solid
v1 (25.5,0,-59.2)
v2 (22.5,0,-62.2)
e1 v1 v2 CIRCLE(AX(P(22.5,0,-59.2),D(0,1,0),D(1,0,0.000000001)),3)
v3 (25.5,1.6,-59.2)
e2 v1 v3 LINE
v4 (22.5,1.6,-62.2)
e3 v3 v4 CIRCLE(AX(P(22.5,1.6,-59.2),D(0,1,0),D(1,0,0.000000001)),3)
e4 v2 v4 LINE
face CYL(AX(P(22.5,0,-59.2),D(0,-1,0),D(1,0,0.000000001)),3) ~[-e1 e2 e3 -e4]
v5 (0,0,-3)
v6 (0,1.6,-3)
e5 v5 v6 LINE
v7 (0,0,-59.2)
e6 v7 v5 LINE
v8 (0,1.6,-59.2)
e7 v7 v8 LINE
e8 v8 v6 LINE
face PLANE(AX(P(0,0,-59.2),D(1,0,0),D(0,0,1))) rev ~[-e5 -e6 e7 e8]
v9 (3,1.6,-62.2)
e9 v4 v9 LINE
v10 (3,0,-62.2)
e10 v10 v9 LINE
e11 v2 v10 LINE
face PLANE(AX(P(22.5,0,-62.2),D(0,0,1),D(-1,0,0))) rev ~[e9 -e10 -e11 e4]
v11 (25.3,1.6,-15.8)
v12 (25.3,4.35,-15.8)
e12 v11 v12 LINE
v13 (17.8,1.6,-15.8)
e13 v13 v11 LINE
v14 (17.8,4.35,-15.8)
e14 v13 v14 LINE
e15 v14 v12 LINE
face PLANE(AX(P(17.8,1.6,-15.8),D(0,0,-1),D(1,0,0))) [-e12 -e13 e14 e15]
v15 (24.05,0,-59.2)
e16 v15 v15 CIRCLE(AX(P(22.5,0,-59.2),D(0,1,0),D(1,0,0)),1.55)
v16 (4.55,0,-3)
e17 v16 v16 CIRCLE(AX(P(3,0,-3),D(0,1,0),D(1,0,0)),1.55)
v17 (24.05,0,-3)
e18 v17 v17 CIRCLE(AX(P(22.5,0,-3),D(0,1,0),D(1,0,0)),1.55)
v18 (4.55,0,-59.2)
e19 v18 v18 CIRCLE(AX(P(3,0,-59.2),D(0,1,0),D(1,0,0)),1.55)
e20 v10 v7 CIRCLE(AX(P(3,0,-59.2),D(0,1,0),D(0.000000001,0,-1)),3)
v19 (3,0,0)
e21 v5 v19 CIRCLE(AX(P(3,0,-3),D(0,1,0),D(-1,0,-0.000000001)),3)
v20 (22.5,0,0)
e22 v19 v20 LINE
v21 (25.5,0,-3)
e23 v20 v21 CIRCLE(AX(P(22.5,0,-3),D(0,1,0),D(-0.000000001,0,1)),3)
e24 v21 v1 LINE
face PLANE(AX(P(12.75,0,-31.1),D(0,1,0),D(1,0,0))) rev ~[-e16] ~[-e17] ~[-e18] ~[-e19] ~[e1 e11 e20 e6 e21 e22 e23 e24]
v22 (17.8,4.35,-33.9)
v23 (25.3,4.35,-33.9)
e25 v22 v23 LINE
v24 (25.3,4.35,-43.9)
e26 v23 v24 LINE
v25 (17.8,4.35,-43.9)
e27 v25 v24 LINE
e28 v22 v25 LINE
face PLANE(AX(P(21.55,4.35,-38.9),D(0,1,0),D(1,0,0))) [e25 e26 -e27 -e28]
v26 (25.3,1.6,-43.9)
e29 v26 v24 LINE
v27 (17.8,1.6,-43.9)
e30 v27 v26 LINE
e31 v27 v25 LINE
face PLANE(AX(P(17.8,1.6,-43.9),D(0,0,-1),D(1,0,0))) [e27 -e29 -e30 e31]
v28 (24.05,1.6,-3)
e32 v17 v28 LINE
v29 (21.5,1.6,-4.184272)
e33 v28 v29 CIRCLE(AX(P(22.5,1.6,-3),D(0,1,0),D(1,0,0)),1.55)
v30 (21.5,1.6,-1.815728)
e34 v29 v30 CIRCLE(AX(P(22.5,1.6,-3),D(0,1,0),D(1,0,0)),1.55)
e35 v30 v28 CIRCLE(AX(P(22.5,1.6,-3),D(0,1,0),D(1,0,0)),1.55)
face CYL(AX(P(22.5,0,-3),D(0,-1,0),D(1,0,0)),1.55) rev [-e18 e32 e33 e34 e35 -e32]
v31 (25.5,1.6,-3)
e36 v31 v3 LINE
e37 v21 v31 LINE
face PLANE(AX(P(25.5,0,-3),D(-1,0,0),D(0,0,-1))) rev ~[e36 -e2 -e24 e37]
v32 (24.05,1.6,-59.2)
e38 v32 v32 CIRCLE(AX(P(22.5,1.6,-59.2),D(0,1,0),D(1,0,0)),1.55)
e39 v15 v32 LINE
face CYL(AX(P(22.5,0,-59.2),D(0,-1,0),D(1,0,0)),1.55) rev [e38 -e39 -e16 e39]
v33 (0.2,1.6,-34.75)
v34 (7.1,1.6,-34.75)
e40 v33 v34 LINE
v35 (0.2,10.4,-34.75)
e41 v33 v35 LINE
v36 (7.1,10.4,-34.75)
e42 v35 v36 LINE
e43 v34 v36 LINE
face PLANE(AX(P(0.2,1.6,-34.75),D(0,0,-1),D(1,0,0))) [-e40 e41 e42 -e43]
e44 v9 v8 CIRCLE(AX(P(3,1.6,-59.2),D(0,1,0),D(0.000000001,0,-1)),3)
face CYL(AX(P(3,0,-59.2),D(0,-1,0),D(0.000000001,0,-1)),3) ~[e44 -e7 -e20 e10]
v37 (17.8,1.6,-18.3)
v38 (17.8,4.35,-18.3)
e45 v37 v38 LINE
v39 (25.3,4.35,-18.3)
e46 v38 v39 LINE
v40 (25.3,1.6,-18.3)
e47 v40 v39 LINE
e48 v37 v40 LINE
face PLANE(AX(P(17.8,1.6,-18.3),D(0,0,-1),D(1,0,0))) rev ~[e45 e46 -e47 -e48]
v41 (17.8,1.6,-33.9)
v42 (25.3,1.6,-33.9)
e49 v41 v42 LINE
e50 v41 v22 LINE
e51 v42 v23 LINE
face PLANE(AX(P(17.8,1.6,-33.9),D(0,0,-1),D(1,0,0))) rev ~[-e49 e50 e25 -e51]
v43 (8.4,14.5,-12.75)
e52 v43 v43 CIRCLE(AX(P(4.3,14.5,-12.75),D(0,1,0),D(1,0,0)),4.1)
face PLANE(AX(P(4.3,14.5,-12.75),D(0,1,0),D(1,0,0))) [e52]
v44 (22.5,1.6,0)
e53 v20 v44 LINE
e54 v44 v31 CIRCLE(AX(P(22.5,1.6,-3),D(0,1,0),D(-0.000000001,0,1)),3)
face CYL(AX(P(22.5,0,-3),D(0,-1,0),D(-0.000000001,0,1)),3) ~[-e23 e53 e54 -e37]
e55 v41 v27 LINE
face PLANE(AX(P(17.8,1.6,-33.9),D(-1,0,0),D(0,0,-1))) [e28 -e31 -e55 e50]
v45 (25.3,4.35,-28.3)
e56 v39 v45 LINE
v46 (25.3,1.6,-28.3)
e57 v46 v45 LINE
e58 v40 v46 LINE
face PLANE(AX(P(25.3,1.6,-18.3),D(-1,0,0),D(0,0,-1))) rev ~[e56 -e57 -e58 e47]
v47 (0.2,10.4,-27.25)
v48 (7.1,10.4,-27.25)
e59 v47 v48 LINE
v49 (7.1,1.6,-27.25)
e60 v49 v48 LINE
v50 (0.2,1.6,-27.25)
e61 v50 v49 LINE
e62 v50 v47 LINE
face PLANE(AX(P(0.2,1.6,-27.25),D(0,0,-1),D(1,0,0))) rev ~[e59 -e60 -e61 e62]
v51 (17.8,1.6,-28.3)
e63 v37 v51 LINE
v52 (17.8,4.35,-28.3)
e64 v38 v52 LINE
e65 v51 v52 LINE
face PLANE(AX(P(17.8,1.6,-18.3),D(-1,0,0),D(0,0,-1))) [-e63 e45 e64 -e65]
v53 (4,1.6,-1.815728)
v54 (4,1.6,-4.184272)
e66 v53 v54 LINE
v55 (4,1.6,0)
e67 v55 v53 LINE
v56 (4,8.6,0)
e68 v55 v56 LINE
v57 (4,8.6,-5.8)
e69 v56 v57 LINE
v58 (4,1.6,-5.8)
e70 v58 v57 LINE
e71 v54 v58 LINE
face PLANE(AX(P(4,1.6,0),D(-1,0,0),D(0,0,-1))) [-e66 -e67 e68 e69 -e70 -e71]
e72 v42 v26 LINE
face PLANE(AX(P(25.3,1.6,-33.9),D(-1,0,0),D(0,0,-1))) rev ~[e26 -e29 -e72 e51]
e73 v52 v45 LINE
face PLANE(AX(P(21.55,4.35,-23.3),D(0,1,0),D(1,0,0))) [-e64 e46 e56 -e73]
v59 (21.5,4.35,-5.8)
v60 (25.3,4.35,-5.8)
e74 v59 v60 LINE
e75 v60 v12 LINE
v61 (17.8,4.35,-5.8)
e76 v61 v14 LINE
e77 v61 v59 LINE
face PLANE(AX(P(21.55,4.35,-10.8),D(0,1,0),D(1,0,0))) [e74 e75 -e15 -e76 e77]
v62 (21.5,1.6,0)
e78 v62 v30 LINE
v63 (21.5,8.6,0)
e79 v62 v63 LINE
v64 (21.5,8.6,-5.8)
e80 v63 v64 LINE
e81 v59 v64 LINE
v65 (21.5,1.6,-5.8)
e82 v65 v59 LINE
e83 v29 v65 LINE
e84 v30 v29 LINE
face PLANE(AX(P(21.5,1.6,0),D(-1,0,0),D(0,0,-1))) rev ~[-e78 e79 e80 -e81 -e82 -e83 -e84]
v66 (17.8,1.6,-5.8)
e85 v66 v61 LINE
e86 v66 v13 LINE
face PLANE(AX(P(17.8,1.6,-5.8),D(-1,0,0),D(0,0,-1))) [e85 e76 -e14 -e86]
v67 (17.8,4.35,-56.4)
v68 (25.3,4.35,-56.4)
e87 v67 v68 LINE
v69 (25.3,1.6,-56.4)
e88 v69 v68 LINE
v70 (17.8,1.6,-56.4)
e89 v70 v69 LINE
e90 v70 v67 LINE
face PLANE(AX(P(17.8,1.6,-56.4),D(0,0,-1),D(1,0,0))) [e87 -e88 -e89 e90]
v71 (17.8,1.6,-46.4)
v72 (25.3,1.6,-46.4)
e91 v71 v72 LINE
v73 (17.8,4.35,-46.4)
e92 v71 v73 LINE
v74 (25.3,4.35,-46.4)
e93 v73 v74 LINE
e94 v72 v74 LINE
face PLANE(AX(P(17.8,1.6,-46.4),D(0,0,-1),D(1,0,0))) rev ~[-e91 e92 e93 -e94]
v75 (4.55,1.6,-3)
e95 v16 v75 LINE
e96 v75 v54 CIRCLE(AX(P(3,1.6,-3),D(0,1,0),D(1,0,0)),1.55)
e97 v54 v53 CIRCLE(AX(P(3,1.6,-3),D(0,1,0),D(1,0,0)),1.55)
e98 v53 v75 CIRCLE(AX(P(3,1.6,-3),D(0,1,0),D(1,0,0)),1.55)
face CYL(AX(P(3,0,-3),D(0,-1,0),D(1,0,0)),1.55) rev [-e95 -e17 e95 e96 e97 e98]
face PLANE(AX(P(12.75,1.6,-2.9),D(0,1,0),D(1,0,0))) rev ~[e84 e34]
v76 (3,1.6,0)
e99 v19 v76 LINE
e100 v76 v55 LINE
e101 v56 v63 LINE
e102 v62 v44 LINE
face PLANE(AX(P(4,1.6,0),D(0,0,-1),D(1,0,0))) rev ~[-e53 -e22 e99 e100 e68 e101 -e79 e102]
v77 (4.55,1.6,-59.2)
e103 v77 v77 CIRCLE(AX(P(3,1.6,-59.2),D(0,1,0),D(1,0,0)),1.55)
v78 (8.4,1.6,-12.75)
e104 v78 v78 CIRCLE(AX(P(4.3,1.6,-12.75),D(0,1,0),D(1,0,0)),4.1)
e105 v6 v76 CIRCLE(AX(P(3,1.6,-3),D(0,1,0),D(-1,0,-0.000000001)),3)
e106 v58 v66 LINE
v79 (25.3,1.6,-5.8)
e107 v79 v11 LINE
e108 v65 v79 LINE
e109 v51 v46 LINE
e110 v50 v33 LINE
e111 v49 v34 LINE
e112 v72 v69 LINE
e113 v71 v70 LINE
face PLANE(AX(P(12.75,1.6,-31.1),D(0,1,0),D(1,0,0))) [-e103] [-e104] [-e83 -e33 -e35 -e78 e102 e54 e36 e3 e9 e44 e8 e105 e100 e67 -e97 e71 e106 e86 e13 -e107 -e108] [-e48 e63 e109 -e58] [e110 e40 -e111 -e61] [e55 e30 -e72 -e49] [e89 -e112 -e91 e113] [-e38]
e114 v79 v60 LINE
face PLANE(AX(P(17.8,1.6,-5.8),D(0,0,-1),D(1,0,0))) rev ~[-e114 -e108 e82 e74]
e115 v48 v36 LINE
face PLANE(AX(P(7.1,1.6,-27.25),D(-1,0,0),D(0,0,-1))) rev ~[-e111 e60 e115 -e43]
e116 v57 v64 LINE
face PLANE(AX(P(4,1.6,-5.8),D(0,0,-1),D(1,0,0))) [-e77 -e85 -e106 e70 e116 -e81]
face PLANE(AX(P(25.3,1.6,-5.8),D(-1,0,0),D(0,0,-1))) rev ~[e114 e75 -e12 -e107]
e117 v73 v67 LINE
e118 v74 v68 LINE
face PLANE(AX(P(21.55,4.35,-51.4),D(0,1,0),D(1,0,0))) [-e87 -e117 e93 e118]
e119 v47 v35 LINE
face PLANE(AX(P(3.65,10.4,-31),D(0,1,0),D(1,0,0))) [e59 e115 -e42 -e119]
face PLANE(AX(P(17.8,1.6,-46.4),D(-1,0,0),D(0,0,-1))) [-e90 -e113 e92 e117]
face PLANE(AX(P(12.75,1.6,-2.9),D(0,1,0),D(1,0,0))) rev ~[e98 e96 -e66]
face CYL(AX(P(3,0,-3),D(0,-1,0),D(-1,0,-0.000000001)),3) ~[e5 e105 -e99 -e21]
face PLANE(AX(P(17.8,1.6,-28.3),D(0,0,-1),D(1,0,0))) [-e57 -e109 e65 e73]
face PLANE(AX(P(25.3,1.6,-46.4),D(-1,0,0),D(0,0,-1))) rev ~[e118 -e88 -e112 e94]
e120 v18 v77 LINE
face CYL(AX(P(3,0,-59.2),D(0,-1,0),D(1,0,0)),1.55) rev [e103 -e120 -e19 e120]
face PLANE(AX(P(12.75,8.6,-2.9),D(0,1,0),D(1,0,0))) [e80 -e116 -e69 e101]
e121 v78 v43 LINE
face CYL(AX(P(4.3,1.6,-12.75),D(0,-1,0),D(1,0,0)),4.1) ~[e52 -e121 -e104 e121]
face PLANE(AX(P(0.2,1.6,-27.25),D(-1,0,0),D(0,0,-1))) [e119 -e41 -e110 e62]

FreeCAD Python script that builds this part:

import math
import FreeCAD as App
import Part
import Sketcher
Q = App.Units.Quantity


def add_polygon(sketch, points):
    """Adds a closed chain of lines whose ends are joined by coincident constraints."""
    first, n = sketch.GeometryCount, len(points)
    for a, b in zip(points, points[1:] + points[:1]):
        sketch.addGeometry(Part.LineSegment(App.Vector(*a, 0), App.Vector(*b, 0)), False)
    for i in range(n):
        sketch.addConstraint(Sketcher.Constraint("Coincident", first + i, 2, first + (i + 1) % n, 1))

doc = App.newDocument("Part")
params = doc.addObject("Spreadsheet::Sheet", "Params")
for row, (alias, value) in enumerate([
    ("sketch1_radius", "3 mm"),
    ("sketch1_diameter", "3.1 mm"),
    ("sketch1_width", "19.5 mm"),
    ("sketch1_height", "56.2 mm"),
    ("pad1_length", "1.6 mm"),
    ("sketch2_width", "6.9 mm"),
    ("sketch2_height", "7.5 mm"),
    ("pad2_length", "8.8 mm"),
    ("sketch3_diameter", "8.2 mm"),
    ("pad3_length", "12.9 mm"),
    ("sketch4_height", "10 mm"),
    ("sketch4_width", "7.5 mm"),
    ("pad4_length", "2.75 mm"),
    ("sketch5_width", "17.5 mm"),
    ("sketch5_height", "5.8 mm"),
    ("pad5_length", "7 mm"),
], start=1):
    params.set(f"A{row}", alias)
    params.set(f"B{row}", "=" + value)
    params.setAlias(f"B{row}", alias)

body = doc.addObject("PartDesign::Body", "Body")

sketch1 = doc.addObject("Sketcher::SketchObject", "Sketch")
body.addObject(sketch1)
sketch1.AttachmentSupport = (doc.XZ_Plane, [""])
sketch1.MapMode = "FlatFace"
sketch1.addGeometry(Part.LineSegment(App.Vector(3, 0, 0), App.Vector(22.5, 0, 0)), False)
sketch1.addGeometry(Part.ArcOfCircle(Part.Circle(App.Vector(22.5, -3, 0), App.Vector(0, 0, 1), 3), math.radians(0), math.radians(90)), False)
sketch1.addGeometry(Part.LineSegment(App.Vector(25.5, -3, 0), App.Vector(25.5, -59.2, 0)), False)
sketch1.addGeometry(Part.ArcOfCircle(Part.Circle(App.Vector(22.5, -59.2, 0), App.Vector(0, 0, 1), 3), math.radians(-90), math.radians(0)), False)
sketch1.addGeometry(Part.LineSegment(App.Vector(22.5, -62.2, 0), App.Vector(3, -62.2, 0)), False)
sketch1.addGeometry(Part.ArcOfCircle(Part.Circle(App.Vector(3, -59.2, 0), App.Vector(0, 0, 1), 3), math.radians(180), math.radians(270)), False)
sketch1.addGeometry(Part.LineSegment(App.Vector(0, -59.2, 0), App.Vector(0, -3, 0)), False)
sketch1.addGeometry(Part.ArcOfCircle(Part.Circle(App.Vector(3, -3, 0), App.Vector(0, 0, 1), 3), math.radians(90), math.radians(180)), False)
sketch1.addGeometry(Part.Circle(App.Vector(3, -3, 0), App.Vector(0, 0, 1), 1.6), False)
sketch1.addGeometry(Part.Circle(App.Vector(22.5, -3, 0), App.Vector(0, 0, 1), 1.6), False)
sketch1.addGeometry(Part.Circle(App.Vector(3, -59.2, 0), App.Vector(0, 0, 1), 1.6), False)
sketch1.addGeometry(Part.Circle(App.Vector(22.5, -59.2, 0), App.Vector(0, 0, 1), 1.6), False)
sketch1.addConstraint(Sketcher.Constraint("Tangent", 0, 2, 1, 2))
sketch1.addConstraint(Sketcher.Constraint("Tangent", 1, 1, 2, 1))
sketch1.addConstraint(Sketcher.Constraint("Tangent", 2, 2, 3, 2))
sketch1.addConstraint(Sketcher.Constraint("Tangent", 3, 1, 4, 1))
sketch1.addConstraint(Sketcher.Constraint("Tangent", 4, 2, 5, 2))
sketch1.addConstraint(Sketcher.Constraint("Tangent", 5, 1, 6, 1))
sketch1.addConstraint(Sketcher.Constraint("Tangent", 6, 2, 7, 2))
sketch1.addConstraint(Sketcher.Constraint("Tangent", 7, 1, 0, 1))
sketch1.addConstraint(Sketcher.Constraint("Horizontal", 0))
sketch1.addConstraint(Sketcher.Constraint("Vertical", 2))
sketch1.addConstraint(Sketcher.Constraint("Horizontal", 4))
sketch1.addConstraint(Sketcher.Constraint("Vertical", 6))
sketch1.addConstraint(Sketcher.Constraint("Coincident", 8, 3, 7, 3))
sketch1.addConstraint(Sketcher.Constraint("Coincident", 9, 3, 1, 3))
sketch1.addConstraint(Sketcher.Constraint("Coincident", 10, 3, 5, 3))
sketch1.addConstraint(Sketcher.Constraint("Coincident", 11, 3, 3, 3))
sketch1.addConstraint(Sketcher.Constraint("Equal", 1, 3))
sketch1.addConstraint(Sketcher.Constraint("Equal", 3, 5))
sketch1.addConstraint(Sketcher.Constraint("Equal", 5, 7))
sketch1.addConstraint(Sketcher.Constraint("Equal", 8, 9))
sketch1.addConstraint(Sketcher.Constraint("Equal", 9, 10))
sketch1.addConstraint(Sketcher.Constraint("Equal", 10, 11))
sketch1.addConstraint(Sketcher.Constraint("PointOnObject", 0, 2, -1))
sketch1.addConstraint(Sketcher.Constraint("PointOnObject", 5, 1, -2))
sketch1.addConstraint(Sketcher.Constraint("Radius", 1, Q("3 mm")))
sketch1.addConstraint(Sketcher.Constraint("Diameter", 8, Q("3.1 mm")))
sketch1.addConstraint(Sketcher.Constraint("DistanceX", 0, 1, 0, 2, Q("19.5 mm")))
sketch1.addConstraint(Sketcher.Constraint("DistanceY", 2, 2, 2, 1, Q("56.2 mm")))
sketch1.setExpression("Constraints[24]", "Params.sketch1_radius")
sketch1.setExpression("Constraints[25]", "Params.sketch1_diameter")
sketch1.setExpression("Constraints[26]", "Params.sketch1_width")
sketch1.setExpression("Constraints[27]", "Params.sketch1_height")
pad1 = doc.addObject("PartDesign::Pad", "Pad")
body.addObject(pad1)
pad1.Profile = sketch1
pad1.setExpression("Length", "Params.pad1_length")
pad1.Reversed = True

sketch2 = doc.addObject("Sketcher::SketchObject", "Sketch001")
body.addObject(sketch2)
sketch2.AttachmentSupport = (doc.XZ_Plane, [""])
sketch2.MapMode = "FlatFace"
sketch2.AttachmentOffset = App.Placement(App.Vector(0, 0, -1.6), App.Rotation())
add_polygon(sketch2, [(0, -35), (0, -27), (7, -27), (7, -35)])
sketch2.addConstraint(Sketcher.Constraint("Vertical", 0))
sketch2.addConstraint(Sketcher.Constraint("Horizontal", 1))
sketch2.addConstraint(Sketcher.Constraint("Vertical", 2))
sketch2.addConstraint(Sketcher.Constraint("Horizontal", 3))
sketch2.addConstraint(Sketcher.Constraint("DistanceX", 1, 1, 1, 2, Q("6.9 mm")))
sketch2.addConstraint(Sketcher.Constraint("DistanceY", 0, 1, 0, 2, Q("7.5 mm")))
sketch2.addConstraint(Sketcher.Constraint("DistanceX", -1, 1, 0, 2, Q("0.2 mm")))
sketch2.addConstraint(Sketcher.Constraint("DistanceY", 0, 2, -1, 1, Q("27.25 mm")))
sketch2.setExpression("Constraints[8]", "Params.sketch2_width")
sketch2.setExpression("Constraints[9]", "Params.sketch2_height")
pad2 = doc.addObject("PartDesign::Pad", "Pad001")
body.addObject(pad2)
pad2.Profile = sketch2
pad2.setExpression("Length", "Params.pad2_length")
pad2.Reversed = True

sketch3 = doc.addObject("Sketcher::SketchObject", "Sketch002")
body.addObject(sketch3)
sketch3.AttachmentSupport = (doc.XZ_Plane, [""])
sketch3.MapMode = "FlatFace"
sketch3.AttachmentOffset = App.Placement(App.Vector(0, 0, -1.6), App.Rotation())
sketch3.addGeometry(Part.Circle(App.Vector(4.3, -12.8, 0), App.Vector(0, 0, 1), 4.1), False)
sketch3.addConstraint(Sketcher.Constraint("Diameter", 0, Q("8.2 mm")))
sketch3.addConstraint(Sketcher.Constraint("DistanceX", -1, 1, 0, 3, Q("4.3 mm")))
sketch3.addConstraint(Sketcher.Constraint("DistanceY", 0, 3, -1, 1, Q("12.75 mm")))
sketch3.setExpression("Constraints[0]", "Params.sketch3_diameter")
pad3 = doc.addObject("PartDesign::Pad", "Pad002")
body.addObject(pad3)
pad3.Profile = sketch3
pad3.setExpression("Length", "Params.pad3_length")
pad3.Reversed = True

sketch4 = doc.addObject("Sketcher::SketchObject", "Sketch003")
body.addObject(sketch4)
sketch4.AttachmentSupport = (doc.XZ_Plane, [""])
sketch4.MapMode = "FlatFace"
sketch4.AttachmentOffset = App.Placement(App.Vector(0, 0, -1.6), App.Rotation())
add_polygon(sketch4, [(18, -16), (18, -6), (25, -6), (25, -16)])
add_polygon(sketch4, [(18, -28), (18, -18), (25, -18), (25, -28)])
add_polygon(sketch4, [(18, -44), (18, -34), (25, -34), (25, -44)])
add_polygon(sketch4, [(18, -56), (18, -46), (25, -46), (25, -56)])
sketch4.addConstraint(Sketcher.Constraint("Vertical", 0))
sketch4.addConstraint(Sketcher.Constraint("Horizontal", 1))
sketch4.addConstraint(Sketcher.Constraint("Vertical", 2))
sketch4.addConstraint(Sketcher.Constraint("Horizontal", 3))
sketch4.addConstraint(Sketcher.Constraint("Vertical", 4))
sketch4.addConstraint(Sketcher.Constraint("Horizontal", 5))
sketch4.addConstraint(Sketcher.Constraint("Vertical", 6))
sketch4.addConstraint(Sketcher.Constraint("Horizontal", 7))
sketch4.addConstraint(Sketcher.Constraint("Vertical", 8))
sketch4.addConstraint(Sketcher.Constraint("Horizontal", 9))
sketch4.addConstraint(Sketcher.Constraint("Vertical", 10))
sketch4.addConstraint(Sketcher.Constraint("Horizontal", 11))
sketch4.addConstraint(Sketcher.Constraint("Vertical", 12))
sketch4.addConstraint(Sketcher.Constraint("Horizontal", 13))
sketch4.addConstraint(Sketcher.Constraint("Vertical", 14))
sketch4.addConstraint(Sketcher.Constraint("Horizontal", 15))
sketch4.addConstraint(Sketcher.Constraint("Vertical", 3, 2, 4, 2))
sketch4.addConstraint(Sketcher.Constraint("Vertical", 2, 2, 5, 2))
sketch4.addConstraint(Sketcher.Constraint("Vertical", 7, 2, 8, 2))
sketch4.addConstraint(Sketcher.Constraint("Vertical", 6, 2, 9, 2))
sketch4.addConstraint(Sketcher.Constraint("Vertical", 11, 2, 12, 2))
sketch4.addConstraint(Sketcher.Constraint("Vertical", 10, 2, 13, 2))
sketch4.addConstraint(Sketcher.Constraint("Equal", 2, 4))
sketch4.addConstraint(Sketcher.Constraint("Equal", 6, 8))
sketch4.addConstraint(Sketcher.Constraint("Equal", 10, 12))
sketch4.addConstraint(Sketcher.Constraint("DistanceY", 0, 1, 0, 2, Q("10 mm")))
sketch4.addConstraint(Sketcher.Constraint("DistanceX", 1, 1, 1, 2, Q("7.5 mm")))
sketch4.addConstraint(Sketcher.Constraint("DistanceX", -1, 1, 0, 2, Q("17.8 mm")))
sketch4.addConstraint(Sketcher.Constraint("DistanceY", 0, 2, -1, 1, Q("5.8 mm")))
sketch4.addConstraint(Sketcher.Constraint("DistanceY", 4, 2, -1, 1, Q("18.3 mm")))
sketch4.addConstraint(Sketcher.Constraint("DistanceY", 8, 2, -1, 1, Q("33.9 mm")))
sketch4.addConstraint(Sketcher.Constraint("DistanceY", 12, 2, -1, 1, Q("46.4 mm")))
sketch4.setExpression("Constraints[41]", "Params.sketch4_height")
sketch4.setExpression("Constraints[42]", "Params.sketch4_width")
pad4 = doc.addObject("PartDesign::Pad", "Pad003")
body.addObject(pad4)
pad4.Profile = sketch4
pad4.setExpression("Length", "Params.pad4_length")
pad4.Reversed = True

sketch5 = doc.addObject("Sketcher::SketchObject", "Sketch004")
body.addObject(sketch5)
sketch5.AttachmentSupport = (doc.XZ_Plane, [""])
sketch5.MapMode = "FlatFace"
sketch5.AttachmentOffset = App.Placement(App.Vector(0, 0, -1.6), App.Rotation())
add_polygon(sketch5, [(4, -6), (4, 0), (22, 0), (22, -6)])
sketch5.addConstraint(Sketcher.Constraint("Vertical", 0))
sketch5.addConstraint(Sketcher.Constraint("Horizontal", 1))
sketch5.addConstraint(Sketcher.Constraint("Vertical", 2))
sketch5.addConstraint(Sketcher.Constraint("Horizontal", 3))
sketch5.addConstraint(Sketcher.Constraint("PointOnObject", 0, 2, -1))
sketch5.addConstraint(Sketcher.Constraint("DistanceX", 1, 1, 1, 2, Q("17.5 mm")))
sketch5.addConstraint(Sketcher.Constraint("DistanceY", 0, 1, 0, 2, Q("5.8 mm")))
sketch5.addConstraint(Sketcher.Constraint("DistanceX", -1, 1, 0, 2, Q("4 mm")))
sketch5.setExpression("Constraints[9]", "Params.sketch5_width")
sketch5.setExpression("Constraints[10]", "Params.sketch5_height")
pad5 = doc.addObject("PartDesign::Pad", "Pad004")
body.addObject(pad5)
pad5.Profile = sketch5
pad5.setExpression("Length", "Params.pad5_length")
pad5.Reversed = True

doc.recompute()
